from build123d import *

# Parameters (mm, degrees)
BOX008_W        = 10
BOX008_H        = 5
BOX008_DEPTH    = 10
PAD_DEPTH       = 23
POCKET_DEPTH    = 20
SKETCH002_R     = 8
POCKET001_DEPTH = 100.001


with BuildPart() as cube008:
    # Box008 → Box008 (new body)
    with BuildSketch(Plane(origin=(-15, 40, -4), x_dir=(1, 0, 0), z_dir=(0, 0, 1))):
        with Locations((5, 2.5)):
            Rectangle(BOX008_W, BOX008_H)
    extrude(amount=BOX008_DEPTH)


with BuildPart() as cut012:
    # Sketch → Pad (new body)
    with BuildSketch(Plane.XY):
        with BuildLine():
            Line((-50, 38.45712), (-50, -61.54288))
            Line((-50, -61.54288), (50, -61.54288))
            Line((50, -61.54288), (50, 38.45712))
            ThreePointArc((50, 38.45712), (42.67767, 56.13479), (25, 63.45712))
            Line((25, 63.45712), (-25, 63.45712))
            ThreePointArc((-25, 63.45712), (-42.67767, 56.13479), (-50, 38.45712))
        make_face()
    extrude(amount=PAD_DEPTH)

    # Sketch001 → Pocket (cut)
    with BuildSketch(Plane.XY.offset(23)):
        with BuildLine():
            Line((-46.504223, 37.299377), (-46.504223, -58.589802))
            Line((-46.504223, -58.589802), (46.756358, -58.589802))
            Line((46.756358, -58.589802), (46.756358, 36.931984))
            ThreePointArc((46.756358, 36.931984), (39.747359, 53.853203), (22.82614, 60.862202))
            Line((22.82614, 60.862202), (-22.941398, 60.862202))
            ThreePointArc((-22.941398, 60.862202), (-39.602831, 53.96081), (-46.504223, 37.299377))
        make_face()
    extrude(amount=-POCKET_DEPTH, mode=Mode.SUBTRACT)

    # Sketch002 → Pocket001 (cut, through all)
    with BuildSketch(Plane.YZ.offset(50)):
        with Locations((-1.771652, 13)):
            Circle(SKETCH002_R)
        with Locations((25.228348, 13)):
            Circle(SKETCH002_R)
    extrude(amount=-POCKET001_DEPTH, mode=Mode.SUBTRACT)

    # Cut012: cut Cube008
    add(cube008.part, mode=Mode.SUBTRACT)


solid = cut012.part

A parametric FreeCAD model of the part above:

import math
import FreeCAD as App
import Part
import Sketcher


def add_polygon(sketch, points):
    """Adds a closed chain of lines whose ends are joined by coincident constraints."""
    first, n = sketch.GeometryCount, len(points)
    for a, b in zip(points, points[1:] + points[:1]):
        sketch.addGeometry(Part.LineSegment(App.Vector(*a, 0), App.Vector(*b, 0)), False)
    for i in range(n):
        sketch.addConstraint(Sketcher.Constraint("Coincident", first + i, 2, first + (i + 1) % n, 1))

doc = App.newDocument("Part")
params = doc.addObject("Spreadsheet::Sheet", "Params")
for row, (alias, value) in enumerate([
    ("sketch1_width", "10 mm"),
    ("sketch1_height", "5 mm"),
    ("pad1_length", "10 mm"),
    ("sketch2_radius", "24.999998 mm"),
    ("sketch2_width", "100 mm"),
    ("pad2_length", "23 mm"),
    ("pocket1_length", "20 mm"),
    ("sketch4_diameter", "16 mm"),
], start=1):
    params.set(f"A{row}", alias)
    params.set(f"B{row}", "=" + value)
    params.setAlias(f"B{row}", alias)

body = doc.addObject("PartDesign::Body", "Body")

# Sketch on XY plane
sketch1 = doc.addObject("Sketcher::SketchObject", "Sketch")
body.addObject(sketch1)
sketch1.AttachmentSupport = (doc.XY_Plane, [""])
sketch1.MapMode = "FlatFace"
sketch1.AttachmentOffset = App.Placement(App.Vector(0, 0, -4), App.Rotation())
add_polygon(sketch1, [(-15, 45), (-15, 40), (-5, 40), (-5, 45)])  # lines 0-3
sketch1.addConstraint(Sketcher.Constraint("Vertical", 0))
sketch1.addConstraint(Sketcher.Constraint("Horizontal", 1))
sketch1.addConstraint(Sketcher.Constraint("Vertical", 2))
sketch1.addConstraint(Sketcher.Constraint("Horizontal", 3))
sketch1.addConstraint(Sketcher.Constraint("DistanceX", 1, 1, 1, 2, 10.0))
sketch1.addConstraint(Sketcher.Constraint("DistanceY", 0, 2, 0, 1, 5.0))
sketch1.addConstraint(Sketcher.Constraint("DistanceX", 0, 2, -1, 1, 15.0))
sketch1.addConstraint(Sketcher.Constraint("DistanceY", -1, 1, 0, 2, 40.0))
sketch1.setExpression("Constraints[8]", "Params.sketch1_width")
sketch1.setExpression("Constraints[9]", "Params.sketch1_height")
pad1 = doc.addObject("PartDesign::Pad", "Pad")
body.addObject(pad1)
pad1.Profile = sketch1
pad1.setExpression("Length", "Params.pad1_length")
body2 = doc.addObject("PartDesign::Body", "Body001")

# Sketch on XY plane
sketch2 = doc.addObject("Sketcher::SketchObject", "Sketch001")
body2.addObject(sketch2)
sketch2.AttachmentSupport = (doc.getObject("XY_Plane001"), [""])
sketch2.MapMode = "FlatFace"
sketch2.addGeometry(Part.LineSegment(App.Vector(-50, 38, 0), App.Vector(-50, -62, 0)), False)
sketch2.addGeometry(Part.LineSegment(App.Vector(-50, -62, 0), App.Vector(50, -62, 0)), False)
sketch2.addGeometry(Part.LineSegment(App.Vector(50, -62, 0), App.Vector(50, 38, 0)), False)
sketch2.addGeometry(Part.ArcOfCircle(Part.Circle(App.Vector(25, 38, 0), App.Vector(0, 0, 1), 25), math.radians(0), math.radians(90)), False)
sketch2.addGeometry(Part.LineSegment(App.Vector(25, 63, 0), App.Vector(-25, 63, 0)), False)
sketch2.addGeometry(Part.ArcOfCircle(Part.Circle(App.Vector(-25, 38, 0), App.Vector(0, 0, 1), 25), math.radians(90), math.radians(180)), False)
sketch2.addConstraint(Sketcher.Constraint("Coincident", 0, 2, 1, 1))
sketch2.addConstraint(Sketcher.Constraint("Coincident", 1, 2, 2, 1))
sketch2.addConstraint(Sketcher.Constraint("Tangent", 2, 2, 3, 1))
sketch2.addConstraint(Sketcher.Constraint("Tangent", 3, 2, 4, 1))
sketch2.addConstraint(Sketcher.Constraint("Tangent", 4, 2, 5, 1))
sketch2.addConstraint(Sketcher.Constraint("Tangent", 5, 2, 0, 1))
sketch2.addConstraint(Sketcher.Constraint("Vertical", 0))
sketch2.addConstraint(Sketcher.Constraint("Horizontal", 1))
sketch2.addConstraint(Sketcher.Constraint("Vertical", 2))
sketch2.addConstraint(Sketcher.Constraint("Horizontal", 4))
sketch2.addConstraint(Sketcher.Constraint("Equal", 3, 5))
sketch2.addConstraint(Sketcher.Constraint("Equal", 1, 0))
sketch2.addConstraint(Sketcher.Constraint("Radius", 3, 24.999998))
sketch2.addConstraint(Sketcher.Constraint("DistanceX", 1, 1, 1, 2, 100.0))
sketch2.addConstraint(Sketcher.Constraint("DistanceX", -1, 1, 3, 3, 25.000002))
sketch2.addConstraint(Sketcher.Constraint("DistanceY", -1, 1, 3, 3, 38.457122))
sketch2.setExpression("Constraints[12]", "Params.sketch2_radius")
sketch2.setExpression("Constraints[13]", "Params.sketch2_width")
pad2 = doc.addObject("PartDesign::Pad", "Pad001")
body2.addObject(pad2)
pad2.Profile = sketch2
pad2.setExpression("Length", "Params.pad2_length")

# Sketch on XY plane
sketch3 = doc.addObject("Sketcher::SketchObject", "Sketch002")
body2.addObject(sketch3)
sketch3.AttachmentSupport = (doc.getObject("XY_Plane001"), [""])
sketch3.MapMode = "FlatFace"
sketch3.AttachmentOffset = App.Placement(App.Vector(0, 0, 23), App.Rotation())
sketch3.addGeometry(Part.LineSegment(App.Vector(-47, 37, 0), App.Vector(-47, -59, 0)), False)
sketch3.addGeometry(Part.LineSegment(App.Vector(-47, -59, 0), App.Vector(47, -59, 0)), False)
sketch3.addGeometry(Part.LineSegment(App.Vector(47, -59, 0), App.Vector(47, 37, 0)), False)
sketch3.addGeometry(Part.ArcOfCircle(Part.Circle(App.Vector(23, 37, 0), App.Vector(0, 0, 1), 24), math.radians(0), math.radians(90)), False)
sketch3.addGeometry(Part.LineSegment(App.Vector(23, 61, 0), App.Vector(-23, 61, 0)), False)
sketch3.addGeometry(Part.ArcOfCircle(Part.Circle(App.Vector(-23, 37, 0), App.Vector(0, 0, 1), 24), math.radians(90), math.radians(180)), False)
sketch3.addConstraint(Sketcher.Constraint("Coincident", 0, 2, 1, 1))
sketch3.addConstraint(Sketcher.Constraint("Coincident", 1, 2, 2, 1))
sketch3.addConstraint(Sketcher.Constraint("Tangent", 2, 2, 3, 1))
sketch3.addConstraint(Sketcher.Constraint("Tangent", 3, 2, 4, 1))
sketch3.addConstraint(Sketcher.Constraint("Tangent", 4, 2, 5, 1))
sketch3.addConstraint(Sketcher.Constraint("Tangent", 5, 2, 0, 1))
sketch3.addConstraint(Sketcher.Constraint("Vertical", 0))
sketch3.addConstraint(Sketcher.Constraint("Horizontal", 1))
sketch3.addConstraint(Sketcher.Constraint("Vertical", 2))
sketch3.addConstraint(Sketcher.Constraint("Horizontal", 4))
sketch3.addConstraint(Sketcher.Constraint("Radius", 3, 23.930219))
sketch3.addConstraint(Sketcher.Constraint("Radius", 5, 23.562826))
sketch3.addConstraint(Sketcher.Constraint("DistanceX", 1, 1, 1, 2, 93.260581))
sketch3.addConstraint(Sketcher.Constraint("DistanceY", 0, 2, 0, 1, 95.889179))
sketch3.addConstraint(Sketcher.Constraint("DistanceY", -1, 1, 3, 2, 60.862202))
sketch3.addConstraint(Sketcher.Constraint("DistanceX", -1, 1, 3, 3, 22.826139))
pocket1 = doc.addObject("PartDesign::Pocket", "Pocket")
body2.addObject(pocket1)
pocket1.Profile = sketch3
pocket1.setExpression("Length", "Params.pocket1_length")

# Sketch on YZ plane
sketch4 = doc.addObject("Sketcher::SketchObject", "Sketch003")
body2.addObject(sketch4)
sketch4.AttachmentSupport = (doc.getObject("YZ_Plane001"), [""])
sketch4.MapMode = "FlatFace"
sketch4.AttachmentOffset = App.Placement(App.Vector(0, 0, 50), App.Rotation())
sketch4.addGeometry(Part.Circle(App.Vector(-2, 13, 0), App.Vector(0, 0, 1), 8), False)
sketch4.addGeometry(Part.Circle(App.Vector(25, 13, 0), App.Vector(0, 0, 1), 8), False)
sketch4.addConstraint(Sketcher.Constraint("Equal", 0, 1))
sketch4.addConstraint(Sketcher.Constraint("Horizontal", 0, 3, 1, 3))
sketch4.addConstraint(Sketcher.Constraint("Diameter", 0, 16.0))
sketch4.addConstraint(Sketcher.Constraint("DistanceY", -1, 1, 0, 3, 13.0))
sketch4.addConstraint(Sketcher.Constraint("DistanceX", 0, 3, 1, 3, 27.0))
sketch4.addConstraint(Sketcher.Constraint("DistanceX", -1, 1, 1, 3, 25.228348))
sketch4.setExpression("Constraints[2]", "Params.sketch4_diameter")
pocket2 = doc.addObject("PartDesign::Pocket", "Pocket001")
body2.addObject(pocket2)
pocket2.Profile = sketch4
pocket2.Type = "ThroughAll"
doc.recompute()

boolean = doc.addObject("PartDesign::Boolean", "Boolean")
body2.addObject(boolean)
boolean.Type = "Cut"
boolean.addObjects([body])

doc.recompute()
